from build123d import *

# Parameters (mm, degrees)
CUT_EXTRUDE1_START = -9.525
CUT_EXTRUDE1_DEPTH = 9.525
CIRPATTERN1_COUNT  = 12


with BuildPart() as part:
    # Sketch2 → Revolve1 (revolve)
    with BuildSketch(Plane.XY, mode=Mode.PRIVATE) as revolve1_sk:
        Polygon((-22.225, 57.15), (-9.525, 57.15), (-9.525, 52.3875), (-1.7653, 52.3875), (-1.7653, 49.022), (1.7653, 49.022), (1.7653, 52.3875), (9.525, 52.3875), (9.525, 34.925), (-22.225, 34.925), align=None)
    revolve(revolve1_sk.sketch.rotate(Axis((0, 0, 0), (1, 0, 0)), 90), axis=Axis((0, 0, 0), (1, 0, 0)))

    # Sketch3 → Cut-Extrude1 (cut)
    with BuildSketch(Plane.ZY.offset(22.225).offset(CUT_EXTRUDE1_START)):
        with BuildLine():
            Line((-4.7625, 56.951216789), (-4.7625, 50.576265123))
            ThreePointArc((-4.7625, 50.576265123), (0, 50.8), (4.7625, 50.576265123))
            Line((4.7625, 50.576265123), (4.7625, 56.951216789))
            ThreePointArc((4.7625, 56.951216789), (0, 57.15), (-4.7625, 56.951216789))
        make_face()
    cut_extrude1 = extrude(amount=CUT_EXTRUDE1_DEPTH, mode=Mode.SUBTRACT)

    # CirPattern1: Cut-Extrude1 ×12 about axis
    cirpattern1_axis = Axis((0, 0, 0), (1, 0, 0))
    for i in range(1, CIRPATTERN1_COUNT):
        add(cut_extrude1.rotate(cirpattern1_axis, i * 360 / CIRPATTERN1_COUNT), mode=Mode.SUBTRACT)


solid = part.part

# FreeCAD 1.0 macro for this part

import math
import FreeCAD as App
import Part
import Sketcher
Q = App.Units.Quantity

doc = App.newDocument("Part")
params = doc.addObject("Spreadsheet::Sheet", "Params")
for row, (alias, value) in enumerate([
    ("sketch1_width", "0.5 in"),
    ("sketch1_width2", "1.25 in"),
    ("sketch1_width3", "0.139 in"),
    ("sketch1_height", "0.875 in"),
    ("sketch1_height2", "0.6875 in"),
    ("revolution_angle", "360 deg"),
    ("sketch2_radius", "2 in"),
    ("sketch2_radius2", "2.25 in"),
    ("pocket1_length", "0.375 in"),
], start=1):
    params.set(f"A{row}", alias)
    params.set(f"B{row}", "=" + value)
    params.setAlias(f"B{row}", alias)

body = doc.addObject("PartDesign::Body", "Body")

# Sketch on XY plane
sketch1 = body.newObject("Sketcher::SketchObject", "Sketch")
sketch1.AttachmentSupport = (doc.getObject("XY_Plane"), [""])
sketch1.MapMode = "FlatFace"
sketch1.addGeometry(Part.LineSegment(App.Vector(-9.525, 57.15, 0), App.Vector(-22.225, 57.15, 0)), False)
sketch1.addGeometry(Part.LineSegment(App.Vector(-22.225, 57.15, 0), App.Vector(-22.225, 34.925, 0)), False)
sketch1.addGeometry(Part.LineSegment(App.Vector(-22.225, 34.925, 0), App.Vector(9.525, 34.925, 0)), False)
sketch1.addGeometry(Part.LineSegment(App.Vector(9.525, 34.925, 0), App.Vector(9.525, 52.3875, 0)), False)
sketch1.addGeometry(Part.LineSegment(App.Vector(9.525, 52.3875, 0), App.Vector(1.7653, 52.3875, 0)), False)
sketch1.addGeometry(Part.LineSegment(App.Vector(1.7653, 52.3875, 0), App.Vector(1.7653, 49.022, 0)), False)
sketch1.addGeometry(Part.LineSegment(App.Vector(1.7653, 49.022, 0), App.Vector(-1.7653, 49.022, 0)), False)
sketch1.addGeometry(Part.LineSegment(App.Vector(-1.7653, 49.022, 0), App.Vector(-1.7653, 52.3875, 0)), False)
sketch1.addGeometry(Part.LineSegment(App.Vector(-1.7653, 52.3875, 0), App.Vector(-9.525, 52.3875, 0)), False)
sketch1.addGeometry(Part.LineSegment(App.Vector(-9.525, 52.3875, 0), App.Vector(-9.525, 57.15, 0)), False)
sketch1.addConstraint(Sketcher.Constraint("Coincident", 0, 2, 1, 1))
sketch1.addConstraint(Sketcher.Constraint("Coincident", 1, 2, 2, 1))
sketch1.addConstraint(Sketcher.Constraint("Coincident", 2, 2, 3, 1))
sketch1.addConstraint(Sketcher.Constraint("Coincident", 3, 2, 4, 1))
sketch1.addConstraint(Sketcher.Constraint("Coincident", 4, 2, 5, 1))
sketch1.addConstraint(Sketcher.Constraint("Coincident", 5, 2, 6, 1))
sketch1.addConstraint(Sketcher.Constraint("Coincident", 6, 2, 7, 1))
sketch1.addConstraint(Sketcher.Constraint("Coincident", 7, 2, 8, 1))
sketch1.addConstraint(Sketcher.Constraint("Coincident", 8, 2, 9, 1))
sketch1.addConstraint(Sketcher.Constraint("Coincident", 9, 2, 0, 1))
sketch1.addConstraint(Sketcher.Constraint("Horizontal", 0))
sketch1.addConstraint(Sketcher.Constraint("Vertical", 1))
sketch1.addConstraint(Sketcher.Constraint("Horizontal", 2))
sketch1.addConstraint(Sketcher.Constraint("Vertical", 3))
sketch1.addConstraint(Sketcher.Constraint("Horizontal", 4))
sketch1.addConstraint(Sketcher.Constraint("Vertical", 5))
sketch1.addConstraint(Sketcher.Constraint("Horizontal", 6))
sketch1.addConstraint(Sketcher.Constraint("Vertical", 7))
sketch1.addConstraint(Sketcher.Constraint("Horizontal", 8))
sketch1.addConstraint(Sketcher.Constraint("Vertical", 9))
sketch1.addConstraint(Sketcher.Constraint("Symmetric", 4, 2, 7, 2, -2))
sketch1.addConstraint(Sketcher.Constraint("Equal", 4, 8))
sketch1.addConstraint(Sketcher.Constraint("DistanceX", 0, 2, 0, 1, Q("0.5 in")))
sketch1.addConstraint(Sketcher.Constraint("DistanceX", 2, 1, 2, 2, Q("1.25 in")))
sketch1.addConstraint(Sketcher.Constraint("DistanceX", 6, 2, 6, 1, Q("0.139 in")))
sketch1.addConstraint(Sketcher.Constraint("DistanceY", 1, 2, 1, 1, Q("0.875 in")))
sketch1.addConstraint(Sketcher.Constraint("DistanceY", 3, 1, 3, 2, Q("0.6875 in")))
sketch1.addConstraint(Sketcher.Constraint("DistanceY", -1, 1, 0, 2, Q("2.25 in")))
sketch1.addConstraint(Sketcher.Constraint("DistanceY", -1, 1, 5, 2, Q("1.93 in")))
sketch1.setExpression("Constraints[22]", "Params.sketch1_width")
sketch1.setExpression("Constraints[23]", "Params.sketch1_width2")
sketch1.setExpression("Constraints[24]", "Params.sketch1_width3")
sketch1.setExpression("Constraints[25]", "Params.sketch1_height")
sketch1.setExpression("Constraints[26]", "Params.sketch1_height2")
revolution = body.newObject("PartDesign::Revolution", "Revolution")
revolution.Profile = sketch1
revolution.ReferenceAxis = (sketch1, ["H_Axis"])
revolution.setExpression("Angle", "Params.revolution_angle")

# Sketch on YZ plane
sketch2 = body.newObject("Sketcher::SketchObject", "Sketch001")
sketch2.AttachmentSupport = (doc.getObject("YZ_Plane"), [""])
sketch2.MapMode = "FlatFace"
sketch2.AttachmentOffset = App.Placement(App.Vector(0, 0, -0.5 * 25.4), App.Rotation())
sketch2.addGeometry(Part.LineSegment(App.Vector(56.951217, -4.7625, 0), App.Vector(50.576265, -4.7625, 0)), False)
sketch2.addGeometry(Part.ArcOfCircle(Part.Circle(App.Vector(0, 0, 0), App.Vector(0, 0, 1), 50.8), math.radians(-5.379379), math.radians(5.379379)), False)
sketch2.addGeometry(Part.LineSegment(App.Vector(50.576265, 4.7625, 0), App.Vector(56.951217, 4.7625, 0)), False)
sketch2.addGeometry(Part.ArcOfCircle(Part.Circle(App.Vector(0, 0, 0), App.Vector(0, 0, 1), 57.15), math.radians(-4.780192), math.radians(4.780192)), False)
sketch2.addConstraint(Sketcher.Constraint("Coincident", 0, 2, 1, 1))
sketch2.addConstraint(Sketcher.Constraint("Coincident", 1, 2, 2, 1))
sketch2.addConstraint(Sketcher.Constraint("Coincident", 2, 2, 3, 2))
sketch2.addConstraint(Sketcher.Constraint("Coincident", 3, 1, 0, 1))
sketch2.addConstraint(Sketcher.Constraint("Horizontal", 0))
sketch2.addConstraint(Sketcher.Constraint("Horizontal", 2))
sketch2.addConstraint(Sketcher.Constraint("Coincident", 1, 3, -1, 1))
sketch2.addConstraint(Sketcher.Constraint("Coincident", 3, 3, -1, 1))
sketch2.addConstraint(Sketcher.Constraint("Vertical", 0, 2, 1, 2))
sketch2.addConstraint(Sketcher.Constraint("Radius", 1, Q("2 in")))
sketch2.addConstraint(Sketcher.Constraint("Radius", 3, Q("2.25 in")))
sketch2.addConstraint(Sketcher.Constraint("DistanceY", 0, 2, -1, 1, Q("0.1875 in")))
sketch2.setExpression("Constraints[9]", "Params.sketch2_radius")
sketch2.setExpression("Constraints[10]", "Params.sketch2_radius2")
pocket1 = body.newObject("PartDesign::Pocket", "Pocket")
pocket1.Profile = sketch2
pocket1.setExpression("Length", "Params.pocket1_length")
doc.recompute()

polarpattern = body.newObject("PartDesign::PolarPattern", "PolarPattern")
polarpattern.Originals = [pocket1]
polarpattern.Axis = (doc.getObject("X_Axis"), [""])
polarpattern.Angle = 360
polarpattern.Occurrences = 12
body.Tip = polarpattern

doc.recompute()
